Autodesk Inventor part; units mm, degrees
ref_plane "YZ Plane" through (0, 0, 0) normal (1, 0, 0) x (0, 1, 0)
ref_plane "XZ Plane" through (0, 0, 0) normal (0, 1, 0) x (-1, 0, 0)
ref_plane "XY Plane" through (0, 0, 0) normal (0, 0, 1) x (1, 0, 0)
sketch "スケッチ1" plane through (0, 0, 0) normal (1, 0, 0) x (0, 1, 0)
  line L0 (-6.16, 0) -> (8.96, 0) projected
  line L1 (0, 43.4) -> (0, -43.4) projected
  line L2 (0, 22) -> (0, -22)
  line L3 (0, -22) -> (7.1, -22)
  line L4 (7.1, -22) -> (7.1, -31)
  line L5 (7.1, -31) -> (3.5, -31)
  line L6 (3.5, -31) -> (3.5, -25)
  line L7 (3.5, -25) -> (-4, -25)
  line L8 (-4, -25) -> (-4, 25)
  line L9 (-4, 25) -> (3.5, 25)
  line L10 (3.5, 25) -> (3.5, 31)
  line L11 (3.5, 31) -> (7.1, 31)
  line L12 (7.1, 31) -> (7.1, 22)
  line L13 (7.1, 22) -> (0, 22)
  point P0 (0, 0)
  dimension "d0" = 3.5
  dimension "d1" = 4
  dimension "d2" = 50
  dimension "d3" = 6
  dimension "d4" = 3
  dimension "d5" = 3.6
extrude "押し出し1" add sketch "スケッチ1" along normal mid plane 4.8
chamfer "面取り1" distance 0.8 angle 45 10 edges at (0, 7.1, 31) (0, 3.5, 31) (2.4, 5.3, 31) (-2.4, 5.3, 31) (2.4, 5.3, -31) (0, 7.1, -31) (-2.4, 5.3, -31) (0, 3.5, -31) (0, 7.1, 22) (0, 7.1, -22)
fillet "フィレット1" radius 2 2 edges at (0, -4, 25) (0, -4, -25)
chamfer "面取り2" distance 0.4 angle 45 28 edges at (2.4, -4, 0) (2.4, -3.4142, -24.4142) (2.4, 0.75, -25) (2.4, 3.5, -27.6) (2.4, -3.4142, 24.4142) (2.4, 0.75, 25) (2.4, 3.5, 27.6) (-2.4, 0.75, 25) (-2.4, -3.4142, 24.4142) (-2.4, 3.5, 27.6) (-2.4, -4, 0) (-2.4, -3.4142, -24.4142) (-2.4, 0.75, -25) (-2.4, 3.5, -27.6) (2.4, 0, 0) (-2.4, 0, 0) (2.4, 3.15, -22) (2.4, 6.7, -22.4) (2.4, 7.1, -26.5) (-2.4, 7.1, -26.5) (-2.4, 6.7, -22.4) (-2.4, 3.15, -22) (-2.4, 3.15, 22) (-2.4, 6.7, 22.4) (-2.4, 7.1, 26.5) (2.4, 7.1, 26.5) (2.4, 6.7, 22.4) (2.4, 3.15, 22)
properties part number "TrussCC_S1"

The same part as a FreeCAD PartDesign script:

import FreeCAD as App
import Part
import Sketcher
Q = App.Units.Quantity


def edges_at(feature, points):
    """Names of the edges that pass closest to the given points."""
    edges = feature.Shape.Edges
    near = lambda p: min(range(len(edges)), key=lambda i: edges[i].distToShape(Part.Vertex(*p))[0])
    return sorted({f"Edge{near(p) + 1}" for p in points})


def add_polygon(sketch, points):
    """Adds a closed chain of lines whose ends are joined by coincident constraints."""
    first, n = sketch.GeometryCount, len(points)
    for a, b in zip(points, points[1:] + points[:1]):
        sketch.addGeometry(Part.LineSegment(App.Vector(*a, 0), App.Vector(*b, 0)), False)
    for i in range(n):
        sketch.addConstraint(Sketcher.Constraint("Coincident", first + i, 2, first + (i + 1) % n, 1))

doc = App.newDocument("Part")
body = doc.addObject("PartDesign::Body", "Body")

# Sketch on YZ plane
sketch1 = body.newObject("Sketcher::SketchObject", "Sketch")
sketch1.AttachmentSupport = (doc.getObject("YZ_Plane"), [""])
sketch1.MapMode = "FlatFace"
add_polygon(sketch1, [(-4, 25), (-4, -25), (3.5, -25), (3.5, -31), (7.1, -31), (7.1, -22), (0, -22), (0, 22), (7.1, 22), (7.1, 31), (3.5, 31), (3.5, 25)])  # lines 0-11
sketch1.addConstraint([
    Sketcher.Constraint("Vertical", 0),
    Sketcher.Constraint("Horizontal", 1),
    Sketcher.Constraint("Vertical", 2),
    Sketcher.Constraint("Horizontal", 3),
    Sketcher.Constraint("Vertical", 4),
    Sketcher.Constraint("Horizontal", 5),
    Sketcher.Constraint("Vertical", 6),
    Sketcher.Constraint("Horizontal", 7),
    Sketcher.Constraint("Vertical", 8),
    Sketcher.Constraint("Horizontal", 9),
    Sketcher.Constraint("Vertical", 10),
    Sketcher.Constraint("Horizontal", 11),
    Sketcher.Constraint("Symmetric", 5, 2, 6, 2, -1, 1),
    Sketcher.Constraint("Symmetric", 3, 2, 8, 2, -1),
    Sketcher.Constraint("Symmetric", 1, 2, 10, 2, -1),
    Sketcher.Constraint("DistanceY", 0, 2, 0, 1, Q("50 mm")),
    Sketcher.Constraint("DistanceY", 2, 2, 2, 1, Q("6 mm")),
    Sketcher.Constraint("DistanceX", 3, 1, 3, 2, Q("3.6 mm")),
    Sketcher.Constraint("DistanceX", 0, 2, -1, 1, Q("4 mm")),
    Sketcher.Constraint("DistanceY", 1, 2, 4, 2, Q("3 mm")),
    Sketcher.Constraint("DistanceX", -1, 1, 1, 2, Q("3.5 mm")),
])
pad1 = body.newObject("PartDesign::Pad", "Pad")
pad1.Profile = sketch1
pad1.Length = 4.8
pad1.Midplane = True
doc.recompute()

chamfer = body.newObject("PartDesign::Chamfer", "Chamfer")
chamfer.Base = (pad1, edges_at(pad1, [
    (0, 7.1, 31),
    (0, 3.5, 31),
    (2.4, 5.3, 31),
    (-2.4, 5.3, 31),
    (2.4, 5.3, -31),
    (0, 7.1, -31),
    (-2.4, 5.3, -31),
    (0, 3.5, -31),
    (0, 7.1, 22),
    (0, 7.1, -22),
]))
chamfer.Size = 0.8
doc.recompute()

fillet = body.newObject("PartDesign::Fillet", "Fillet")
fillet.Base = (chamfer, edges_at(chamfer, [(0, -4, 25), (0, -4, -25)]))
fillet.Radius = 2
doc.recompute()

chamfer2 = body.newObject("PartDesign::Chamfer", "Chamfer001")
chamfer2.Base = (fillet, edges_at(fillet, [
    (2.4, -4, 0),
    (2.4, -3.414, -24.414),
    (2.4, 0.75, -25),
    (2.4, 3.5, -27.6),
    (2.4, -3.414, 24.414),
    (2.4, 0.75, 25),
    (2.4, 3.5, 27.6),
    (-2.4, 0.75, 25),
    (-2.4, -3.414, 24.414),
    (-2.4, 3.5, 27.6),
    (-2.4, -4, 0),
    (-2.4, -3.414, -24.414),
    (-2.4, 0.75, -25),
    (-2.4, 3.5, -27.6),
    (2.4, 0, 0),
    (-2.4, 0, 0),
    (2.4, 3.15, -22),
    (2.4, 6.7, -22.4),
    (2.4, 7.1, -26.5),
    (-2.4, 7.1, -26.5),
    (-2.4, 6.7, -22.4),
    (-2.4, 3.15, -22),
    (-2.4, 3.15, 22),
    (-2.4, 6.7, 22.4),
    (-2.4, 7.1, 26.5),
    (2.4, 7.1, 26.5),
    (2.4, 6.7, 22.4),
    (2.4, 3.15, 22),
]))
chamfer2.Size = 0.4

doc.recompute()
